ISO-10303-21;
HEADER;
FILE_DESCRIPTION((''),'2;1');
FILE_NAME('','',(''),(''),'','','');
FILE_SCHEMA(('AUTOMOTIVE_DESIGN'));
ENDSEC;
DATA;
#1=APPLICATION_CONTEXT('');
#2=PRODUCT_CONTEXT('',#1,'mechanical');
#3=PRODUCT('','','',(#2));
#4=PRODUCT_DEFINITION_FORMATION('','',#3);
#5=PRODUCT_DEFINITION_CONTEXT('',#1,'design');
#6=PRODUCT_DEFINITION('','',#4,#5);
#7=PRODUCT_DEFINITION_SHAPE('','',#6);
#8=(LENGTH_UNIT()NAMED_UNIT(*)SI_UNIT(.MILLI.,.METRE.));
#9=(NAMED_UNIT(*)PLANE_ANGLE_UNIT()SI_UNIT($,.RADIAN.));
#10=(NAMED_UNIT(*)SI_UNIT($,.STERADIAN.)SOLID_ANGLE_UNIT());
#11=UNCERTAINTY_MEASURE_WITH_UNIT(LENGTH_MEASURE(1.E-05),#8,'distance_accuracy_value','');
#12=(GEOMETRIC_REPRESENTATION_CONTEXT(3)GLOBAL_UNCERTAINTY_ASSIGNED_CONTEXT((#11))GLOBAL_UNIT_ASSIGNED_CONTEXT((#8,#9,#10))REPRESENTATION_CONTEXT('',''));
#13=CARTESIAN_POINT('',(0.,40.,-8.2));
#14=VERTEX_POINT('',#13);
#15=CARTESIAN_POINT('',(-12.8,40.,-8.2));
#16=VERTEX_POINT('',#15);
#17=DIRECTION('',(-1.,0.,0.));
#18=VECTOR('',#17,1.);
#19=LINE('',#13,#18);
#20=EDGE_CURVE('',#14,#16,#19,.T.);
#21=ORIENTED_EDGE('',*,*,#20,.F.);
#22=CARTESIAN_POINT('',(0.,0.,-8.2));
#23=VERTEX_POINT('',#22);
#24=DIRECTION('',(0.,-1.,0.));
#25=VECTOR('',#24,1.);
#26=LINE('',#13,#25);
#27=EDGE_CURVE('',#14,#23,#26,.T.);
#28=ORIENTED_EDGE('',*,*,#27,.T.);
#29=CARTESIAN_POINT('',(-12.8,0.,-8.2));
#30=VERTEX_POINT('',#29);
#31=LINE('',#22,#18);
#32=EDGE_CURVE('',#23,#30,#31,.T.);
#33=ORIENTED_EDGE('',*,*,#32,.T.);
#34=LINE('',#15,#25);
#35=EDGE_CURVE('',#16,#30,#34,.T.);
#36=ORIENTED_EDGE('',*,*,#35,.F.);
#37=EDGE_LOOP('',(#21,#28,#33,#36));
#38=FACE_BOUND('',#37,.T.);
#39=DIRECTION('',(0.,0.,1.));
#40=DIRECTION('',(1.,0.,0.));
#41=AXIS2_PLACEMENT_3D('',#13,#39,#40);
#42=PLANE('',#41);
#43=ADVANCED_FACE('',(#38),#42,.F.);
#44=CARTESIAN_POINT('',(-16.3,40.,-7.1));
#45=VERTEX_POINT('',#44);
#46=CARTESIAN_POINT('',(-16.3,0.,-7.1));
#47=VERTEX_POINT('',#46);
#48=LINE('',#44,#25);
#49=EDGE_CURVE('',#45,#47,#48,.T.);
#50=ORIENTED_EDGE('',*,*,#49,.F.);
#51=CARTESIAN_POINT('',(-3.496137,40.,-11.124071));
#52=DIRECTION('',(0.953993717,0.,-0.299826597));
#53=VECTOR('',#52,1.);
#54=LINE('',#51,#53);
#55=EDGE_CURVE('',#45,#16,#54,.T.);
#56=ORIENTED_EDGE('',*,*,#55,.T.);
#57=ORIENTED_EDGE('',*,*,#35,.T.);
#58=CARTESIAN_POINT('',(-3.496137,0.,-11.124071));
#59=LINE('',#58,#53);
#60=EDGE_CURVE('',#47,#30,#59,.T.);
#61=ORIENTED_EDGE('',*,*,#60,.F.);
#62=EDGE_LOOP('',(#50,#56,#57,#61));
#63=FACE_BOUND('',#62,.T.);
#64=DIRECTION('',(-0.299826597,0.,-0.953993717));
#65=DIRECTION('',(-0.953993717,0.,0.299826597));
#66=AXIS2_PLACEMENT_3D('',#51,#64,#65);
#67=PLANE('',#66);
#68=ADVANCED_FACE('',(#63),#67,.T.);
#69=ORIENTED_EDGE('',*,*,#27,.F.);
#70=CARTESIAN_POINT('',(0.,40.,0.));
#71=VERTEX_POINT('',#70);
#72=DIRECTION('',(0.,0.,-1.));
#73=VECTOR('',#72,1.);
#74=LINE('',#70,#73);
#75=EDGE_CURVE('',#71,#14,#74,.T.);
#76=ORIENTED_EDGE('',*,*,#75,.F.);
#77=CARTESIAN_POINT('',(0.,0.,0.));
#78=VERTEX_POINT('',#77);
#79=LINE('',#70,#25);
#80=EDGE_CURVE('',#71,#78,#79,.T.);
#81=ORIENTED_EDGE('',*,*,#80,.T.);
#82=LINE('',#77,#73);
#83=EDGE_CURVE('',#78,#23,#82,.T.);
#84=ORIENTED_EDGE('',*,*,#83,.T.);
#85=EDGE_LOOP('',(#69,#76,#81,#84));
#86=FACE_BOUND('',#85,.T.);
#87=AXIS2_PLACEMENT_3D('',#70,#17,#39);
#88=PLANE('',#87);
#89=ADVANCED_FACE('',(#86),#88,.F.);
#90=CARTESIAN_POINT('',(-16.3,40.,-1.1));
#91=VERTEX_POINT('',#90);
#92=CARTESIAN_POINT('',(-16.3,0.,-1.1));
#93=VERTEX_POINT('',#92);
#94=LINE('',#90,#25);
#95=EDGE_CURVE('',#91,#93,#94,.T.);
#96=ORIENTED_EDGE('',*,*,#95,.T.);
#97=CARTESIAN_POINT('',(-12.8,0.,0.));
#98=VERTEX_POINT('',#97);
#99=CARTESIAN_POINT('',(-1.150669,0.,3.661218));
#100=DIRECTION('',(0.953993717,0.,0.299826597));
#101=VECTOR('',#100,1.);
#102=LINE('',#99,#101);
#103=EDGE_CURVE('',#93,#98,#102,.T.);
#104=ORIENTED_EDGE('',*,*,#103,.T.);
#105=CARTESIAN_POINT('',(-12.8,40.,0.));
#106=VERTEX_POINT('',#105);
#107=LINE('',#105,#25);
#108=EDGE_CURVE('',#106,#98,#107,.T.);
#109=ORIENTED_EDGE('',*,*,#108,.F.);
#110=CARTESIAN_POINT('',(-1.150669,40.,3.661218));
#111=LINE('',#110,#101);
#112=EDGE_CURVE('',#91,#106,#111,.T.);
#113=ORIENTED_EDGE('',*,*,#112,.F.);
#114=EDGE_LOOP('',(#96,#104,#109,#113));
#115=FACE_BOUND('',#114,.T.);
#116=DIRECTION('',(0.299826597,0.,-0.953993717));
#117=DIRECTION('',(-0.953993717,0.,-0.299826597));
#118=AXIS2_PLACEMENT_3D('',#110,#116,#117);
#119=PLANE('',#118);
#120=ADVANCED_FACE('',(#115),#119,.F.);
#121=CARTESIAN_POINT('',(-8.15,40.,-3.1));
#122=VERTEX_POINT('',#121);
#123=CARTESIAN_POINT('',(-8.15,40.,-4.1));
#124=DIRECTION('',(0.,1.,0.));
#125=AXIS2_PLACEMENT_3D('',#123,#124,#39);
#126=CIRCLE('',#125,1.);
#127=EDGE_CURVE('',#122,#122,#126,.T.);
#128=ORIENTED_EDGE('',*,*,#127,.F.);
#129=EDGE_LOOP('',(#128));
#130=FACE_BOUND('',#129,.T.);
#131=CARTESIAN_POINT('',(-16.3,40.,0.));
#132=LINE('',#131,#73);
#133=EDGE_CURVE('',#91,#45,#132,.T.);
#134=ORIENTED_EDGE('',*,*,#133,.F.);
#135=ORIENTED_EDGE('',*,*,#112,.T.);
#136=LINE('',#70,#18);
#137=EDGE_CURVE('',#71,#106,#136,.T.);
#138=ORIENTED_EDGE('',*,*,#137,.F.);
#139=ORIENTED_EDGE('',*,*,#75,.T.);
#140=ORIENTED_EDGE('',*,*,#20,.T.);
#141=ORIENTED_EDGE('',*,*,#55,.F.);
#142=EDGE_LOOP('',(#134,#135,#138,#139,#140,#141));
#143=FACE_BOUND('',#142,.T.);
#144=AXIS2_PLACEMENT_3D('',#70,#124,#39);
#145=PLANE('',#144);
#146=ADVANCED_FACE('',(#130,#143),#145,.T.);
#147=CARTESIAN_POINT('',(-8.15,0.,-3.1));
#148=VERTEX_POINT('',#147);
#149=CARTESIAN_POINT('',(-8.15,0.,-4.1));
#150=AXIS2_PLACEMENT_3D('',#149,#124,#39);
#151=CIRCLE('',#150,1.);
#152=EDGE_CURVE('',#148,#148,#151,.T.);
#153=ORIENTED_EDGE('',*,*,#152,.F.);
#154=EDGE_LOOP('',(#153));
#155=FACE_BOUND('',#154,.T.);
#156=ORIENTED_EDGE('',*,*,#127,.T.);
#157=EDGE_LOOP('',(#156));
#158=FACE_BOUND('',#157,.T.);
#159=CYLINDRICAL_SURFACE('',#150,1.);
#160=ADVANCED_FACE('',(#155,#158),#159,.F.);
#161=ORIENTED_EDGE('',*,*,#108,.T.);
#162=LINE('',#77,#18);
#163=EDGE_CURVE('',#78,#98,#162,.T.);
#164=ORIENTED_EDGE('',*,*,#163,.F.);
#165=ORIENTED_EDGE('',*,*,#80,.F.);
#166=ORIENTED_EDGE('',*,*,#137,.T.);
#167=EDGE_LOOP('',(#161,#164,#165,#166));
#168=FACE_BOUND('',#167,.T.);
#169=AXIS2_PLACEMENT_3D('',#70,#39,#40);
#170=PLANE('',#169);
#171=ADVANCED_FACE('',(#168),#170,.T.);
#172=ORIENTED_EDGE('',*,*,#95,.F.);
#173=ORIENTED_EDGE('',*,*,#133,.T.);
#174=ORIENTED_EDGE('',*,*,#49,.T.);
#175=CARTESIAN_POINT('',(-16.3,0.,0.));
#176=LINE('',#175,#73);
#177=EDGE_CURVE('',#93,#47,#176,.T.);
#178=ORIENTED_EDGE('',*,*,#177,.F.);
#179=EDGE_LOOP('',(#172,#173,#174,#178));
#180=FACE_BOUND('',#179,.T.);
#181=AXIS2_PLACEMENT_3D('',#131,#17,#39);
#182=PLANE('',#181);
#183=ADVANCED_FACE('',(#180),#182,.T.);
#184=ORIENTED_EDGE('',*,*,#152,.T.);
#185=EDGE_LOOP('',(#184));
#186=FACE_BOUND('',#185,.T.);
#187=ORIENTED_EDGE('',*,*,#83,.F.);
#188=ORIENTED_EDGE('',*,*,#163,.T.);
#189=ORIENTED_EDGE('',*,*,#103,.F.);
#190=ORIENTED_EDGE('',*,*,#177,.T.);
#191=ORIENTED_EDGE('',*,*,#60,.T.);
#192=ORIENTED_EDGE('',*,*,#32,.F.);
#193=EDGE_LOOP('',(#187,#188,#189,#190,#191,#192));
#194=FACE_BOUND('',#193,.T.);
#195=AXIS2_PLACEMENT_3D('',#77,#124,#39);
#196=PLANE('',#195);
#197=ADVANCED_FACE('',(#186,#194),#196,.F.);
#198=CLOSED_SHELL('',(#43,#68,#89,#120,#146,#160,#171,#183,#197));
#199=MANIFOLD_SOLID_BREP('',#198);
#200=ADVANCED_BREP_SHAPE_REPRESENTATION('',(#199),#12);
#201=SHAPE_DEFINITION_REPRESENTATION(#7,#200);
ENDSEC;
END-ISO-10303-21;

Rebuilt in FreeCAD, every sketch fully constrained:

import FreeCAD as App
import Part
import Sketcher

V = App.Vector


def add_polygon(sketch, points):
    """Adds a closed chain of lines whose ends are joined by coincident constraints."""
    first, n = sketch.GeometryCount, len(points)
    for a, b in zip(points, points[1:] + points[:1]):
        sketch.addGeometry(Part.LineSegment(App.Vector(*a, 0), App.Vector(*b, 0)), False)
    for i in range(n):
        sketch.addConstraint(Sketcher.Constraint("Coincident", first + i, 2, first + (i + 1) % n, 1))

doc = App.newDocument("Part")
body = doc.addObject("PartDesign::Body", "Body")

# Sketch on XZ plane
sketch1 = doc.addObject("Sketcher::SketchObject", "Sketch")
body.addObject(sketch1)
sketch1.AttachmentSupport = (doc.XZ_Plane, [""])
sketch1.MapMode = "FlatFace"
add_polygon(sketch1, [(0, -8.2), (-12.8, -8.2), (-16.3, -7.1), (-16.3, -1.1), (-12.8, 0), (0, 0)])  # lines 0-5
sketch1.addConstraint(Sketcher.Constraint("Horizontal", 0))
sketch1.addConstraint(Sketcher.Constraint("Vertical", 2))
sketch1.addConstraint(Sketcher.Constraint("Horizontal", 4))
sketch1.addConstraint(Sketcher.Constraint("Vertical", 5))
sketch1.addConstraint(Sketcher.Constraint("Coincident", 4, 2, -1, 1))
sketch1.addConstraint(Sketcher.Constraint("Vertical", 0, 2, 3, 2))
sketch1.addConstraint(Sketcher.Constraint("Equal", 1, 3))
sketch1.addConstraint(Sketcher.Constraint("DistanceY", 2, 1, 2, 2, 6.0))
sketch1.addConstraint(Sketcher.Constraint("DistanceX", 0, 2, 0, 1, 12.8))
sketch1.addConstraint(Sketcher.Constraint("DistanceY", 5, 2, 5, 1, 8.2))
sketch1.addConstraint(Sketcher.Constraint("DistanceX", 1, 2, -1, 1, 16.3))
pad1 = doc.addObject("PartDesign::Pad", "Pad")
body.addObject(pad1)
pad1.Profile = sketch1
pad1.Length = 40
pad1.Reversed = True

# Sketch on XZ plane
sketch2 = doc.addObject("Sketcher::SketchObject", "Sketch001")
body.addObject(sketch2)
sketch2.AttachmentSupport = (doc.XZ_Plane, [""])
sketch2.MapMode = "FlatFace"
sketch2.AttachmentOffset = App.Placement(V(0, 0, -40), App.Rotation())
sketch2.addGeometry(Part.Circle(V(-8.2, -4.1, 0), V(0, 0, 1), 1), False)
sketch2.addConstraint(Sketcher.Constraint("Diameter", 0, 2.0))
sketch2.addConstraint(Sketcher.Constraint("DistanceY", 0, 3, -1, 1, 4.1))
sketch2.addConstraint(Sketcher.Constraint("DistanceX", 0, 3, -1, 1, 8.15))
pocket1 = doc.addObject("PartDesign::Pocket", "Pocket")
body.addObject(pocket1)
pocket1.Profile = sketch2
pocket1.Type = "ThroughAll"
pocket1.Reversed = True

doc.recompute()
